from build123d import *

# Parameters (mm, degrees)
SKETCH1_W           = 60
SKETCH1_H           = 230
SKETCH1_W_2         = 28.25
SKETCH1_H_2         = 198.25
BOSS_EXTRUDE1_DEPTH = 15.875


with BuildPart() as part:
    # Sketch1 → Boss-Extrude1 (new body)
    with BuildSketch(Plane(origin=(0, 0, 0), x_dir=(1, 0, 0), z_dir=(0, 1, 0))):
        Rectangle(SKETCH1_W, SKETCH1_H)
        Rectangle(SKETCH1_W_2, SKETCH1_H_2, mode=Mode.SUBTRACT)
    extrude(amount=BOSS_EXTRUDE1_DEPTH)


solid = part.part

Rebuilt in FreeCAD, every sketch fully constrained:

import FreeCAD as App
import Part
import Sketcher
from FreeCAD import Vector

doc = App.newDocument("Part")
params = doc.addObject("Spreadsheet::Sheet", "Params")
for row, (alias, value) in enumerate([
    ("sketch1_width", "60 mm"),
    ("sketch1_height", "230 mm"),
    ("sketch1_width2", "28.25 mm"),
    ("sketch1_height2", "198.25 mm"),
    ("pad1_length", "15.875 mm"),
], start=1):
    params.set(f"A{row}", alias)
    params.set(f"B{row}", "=" + value)
    params.setAlias(f"B{row}", alias)

body = doc.addObject("PartDesign::Body", "Body")

# Sketch on XZ plane
sketch1 = body.newObject("Sketcher::SketchObject", "Sketch")
sketch1.AttachmentSupport = (doc.getObject("XZ_Plane"), [""])
sketch1.MapMode = "FlatFace"
sketch1.addGeometry([
    Part.LineSegment(Vector(-30, -115, 0), Vector(-30, 115, 0)),  # 0
    Part.LineSegment(Vector(-30, 115, 0), Vector(30, 115, 0)),  # 1
    Part.LineSegment(Vector(30, 115, 0), Vector(30, -115, 0)),  # 2
    Part.LineSegment(Vector(30, -115, 0), Vector(-30, -115, 0)),  # 3
    Part.LineSegment(Vector(14, 99, 0), Vector(-14, 99, 0)),  # 4
    Part.LineSegment(Vector(-14, 99, 0), Vector(-14, -99, 0)),  # 5
    Part.LineSegment(Vector(-14, -99, 0), Vector(14, -99, 0)),  # 6
    Part.LineSegment(Vector(14, -99, 0), Vector(14, 99, 0)),  # 7
], False)
sketch1.addConstraint([
    Sketcher.Constraint("Coincident", 0, 2, 1, 1),
    Sketcher.Constraint("Coincident", 1, 2, 2, 1),
    Sketcher.Constraint("Coincident", 2, 2, 3, 1),
    Sketcher.Constraint("Coincident", 3, 2, 0, 1),
    Sketcher.Constraint("Coincident", 4, 2, 5, 1),
    Sketcher.Constraint("Coincident", 5, 2, 6, 1),
    Sketcher.Constraint("Coincident", 6, 2, 7, 1),
    Sketcher.Constraint("Coincident", 7, 2, 4, 1),
    Sketcher.Constraint("Vertical", 0),
    Sketcher.Constraint("Horizontal", 1),
    Sketcher.Constraint("Vertical", 2),
    Sketcher.Constraint("Horizontal", 3),
    Sketcher.Constraint("Horizontal", 4),
    Sketcher.Constraint("Vertical", 5),
    Sketcher.Constraint("Horizontal", 6),
    Sketcher.Constraint("Vertical", 7),
    Sketcher.Constraint("Symmetric", 0, 2, 2, 2, -1, 1),
    Sketcher.Constraint("Symmetric", 4, 2, 6, 2, -1, 1),
    Sketcher.Constraint("DistanceX", 1, 1, 1, 2, 60.0),
    Sketcher.Constraint("DistanceY", 0, 1, 0, 2, 230.0),
    Sketcher.Constraint("DistanceX", 4, 2, 4, 1, 28.25),
    Sketcher.Constraint("DistanceY", 5, 2, 5, 1, 198.25),
])
sketch1.setExpression("Constraints[18]", "Params.sketch1_width")
sketch1.setExpression("Constraints[19]", "Params.sketch1_height")
sketch1.setExpression("Constraints[20]", "Params.sketch1_width2")
sketch1.setExpression("Constraints[21]", "Params.sketch1_height2")
pad1 = body.newObject("PartDesign::Pad", "Pad")
pad1.Profile = sketch1
pad1.setExpression("Length", "Params.pad1_length")
pad1.Reversed = True

doc.recompute()
